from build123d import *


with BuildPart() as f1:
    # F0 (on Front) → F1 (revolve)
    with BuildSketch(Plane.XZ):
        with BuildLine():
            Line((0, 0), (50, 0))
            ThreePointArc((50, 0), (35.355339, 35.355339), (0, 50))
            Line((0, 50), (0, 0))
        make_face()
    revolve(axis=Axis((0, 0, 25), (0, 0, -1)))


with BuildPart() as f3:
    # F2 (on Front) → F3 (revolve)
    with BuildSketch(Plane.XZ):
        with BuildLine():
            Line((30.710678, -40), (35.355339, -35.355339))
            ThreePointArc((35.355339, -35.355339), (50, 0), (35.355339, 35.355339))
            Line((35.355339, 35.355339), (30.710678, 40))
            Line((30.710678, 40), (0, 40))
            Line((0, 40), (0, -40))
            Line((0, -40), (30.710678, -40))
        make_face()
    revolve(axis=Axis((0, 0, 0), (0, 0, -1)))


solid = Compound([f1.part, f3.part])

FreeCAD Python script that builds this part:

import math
import FreeCAD as App
import Part
import Sketcher
from FreeCAD import Vector

doc = App.newDocument("Part")
body = doc.addObject("PartDesign::Body", "Body")

# Sketch on XZ plane
sketch1 = body.newObject("Sketcher::SketchObject", "Sketch")
sketch1.AttachmentSupport = (doc.getObject("XZ_Plane"), [""])
sketch1.MapMode = "FlatFace"
sketch1.addGeometry([
    Part.LineSegment(Vector(0, 0, 0), Vector(50, 0, 0)),
    Part.ArcOfCircle(Part.Circle(Vector(0, 0, 0), Vector(0, 0, 1), 50), math.radians(0), math.radians(90)),
    Part.LineSegment(Vector(0, 50, 0), Vector(0, 0, 0)),
], False)
sketch1.addConstraint([
    Sketcher.Constraint("Coincident", 0, 2, 1, 1),
    Sketcher.Constraint("Coincident", 1, 2, 2, 1),
    Sketcher.Constraint("Coincident", 2, 2, 0, 1),
    Sketcher.Constraint("Horizontal", 0),
    Sketcher.Constraint("Vertical", 2),
    Sketcher.Constraint("Coincident", 1, 3, -1, 1),
    Sketcher.Constraint("Coincident", 2, 2, -1, 1),
    Sketcher.Constraint("Radius", 1, 50.0),
])
revolution = body.newObject("PartDesign::Revolution", "Revolution")
revolution.Profile = sketch1
revolution.ReferenceAxis = (sketch1, ["V_Axis"])
revolution.Angle = 360
body2 = doc.addObject("PartDesign::Body", "Body001")

# Sketch on XZ plane
sketch2 = body2.newObject("Sketcher::SketchObject", "Sketch001")
sketch2.AttachmentSupport = (doc.getObject("XZ_Plane001"), [""])
sketch2.MapMode = "FlatFace"
sketch2.addGeometry([
    Part.LineSegment(Vector(31, -40, 0), Vector(35, -35, 0)),  # 0
    Part.ArcOfCircle(Part.Circle(Vector(0, 0, 0), Vector(0, 0, 1), 50), math.radians(-45), math.radians(45)),  # 1
    Part.LineSegment(Vector(35, 35, 0), Vector(31, 40, 0)),  # 2
    Part.LineSegment(Vector(31, 40, 0), Vector(0, 40, 0)),  # 3
    Part.LineSegment(Vector(0, 40, 0), Vector(0, -40, 0)),  # 4
    Part.LineSegment(Vector(0, -40, 0), Vector(31, -40, 0)),  # 5
], False)
sketch2.addConstraint([
    Sketcher.Constraint("Tangent", 0, 2, 1, 1),
    Sketcher.Constraint("Tangent", 1, 2, 2, 1),
    Sketcher.Constraint("Coincident", 2, 2, 3, 1),
    Sketcher.Constraint("Coincident", 3, 2, 4, 1),
    Sketcher.Constraint("Coincident", 4, 2, 5, 1),
    Sketcher.Constraint("Coincident", 5, 2, 0, 1),
    Sketcher.Constraint("Horizontal", 3),
    Sketcher.Constraint("Vertical", 4),
    Sketcher.Constraint("Horizontal", 5),
    Sketcher.Constraint("Coincident", 1, 3, -1, 1),
    Sketcher.Constraint("Symmetric", 3, 2, 4, 2, -1, 1),
    Sketcher.Constraint("Perpendicular", 0, 2),
    Sketcher.Constraint("Vertical", 0, 2, 1, 2),
    Sketcher.Constraint("Radius", 1, 50.0),
    Sketcher.Constraint("DistanceY", 4, 2, 4, 1, 80.0),
])
revolution2 = body2.newObject("PartDesign::Revolution", "Revolution001")
revolution2.Profile = sketch2
revolution2.ReferenceAxis = (sketch2, ["V_Axis"])
revolution2.Angle = 360

doc.recompute()
